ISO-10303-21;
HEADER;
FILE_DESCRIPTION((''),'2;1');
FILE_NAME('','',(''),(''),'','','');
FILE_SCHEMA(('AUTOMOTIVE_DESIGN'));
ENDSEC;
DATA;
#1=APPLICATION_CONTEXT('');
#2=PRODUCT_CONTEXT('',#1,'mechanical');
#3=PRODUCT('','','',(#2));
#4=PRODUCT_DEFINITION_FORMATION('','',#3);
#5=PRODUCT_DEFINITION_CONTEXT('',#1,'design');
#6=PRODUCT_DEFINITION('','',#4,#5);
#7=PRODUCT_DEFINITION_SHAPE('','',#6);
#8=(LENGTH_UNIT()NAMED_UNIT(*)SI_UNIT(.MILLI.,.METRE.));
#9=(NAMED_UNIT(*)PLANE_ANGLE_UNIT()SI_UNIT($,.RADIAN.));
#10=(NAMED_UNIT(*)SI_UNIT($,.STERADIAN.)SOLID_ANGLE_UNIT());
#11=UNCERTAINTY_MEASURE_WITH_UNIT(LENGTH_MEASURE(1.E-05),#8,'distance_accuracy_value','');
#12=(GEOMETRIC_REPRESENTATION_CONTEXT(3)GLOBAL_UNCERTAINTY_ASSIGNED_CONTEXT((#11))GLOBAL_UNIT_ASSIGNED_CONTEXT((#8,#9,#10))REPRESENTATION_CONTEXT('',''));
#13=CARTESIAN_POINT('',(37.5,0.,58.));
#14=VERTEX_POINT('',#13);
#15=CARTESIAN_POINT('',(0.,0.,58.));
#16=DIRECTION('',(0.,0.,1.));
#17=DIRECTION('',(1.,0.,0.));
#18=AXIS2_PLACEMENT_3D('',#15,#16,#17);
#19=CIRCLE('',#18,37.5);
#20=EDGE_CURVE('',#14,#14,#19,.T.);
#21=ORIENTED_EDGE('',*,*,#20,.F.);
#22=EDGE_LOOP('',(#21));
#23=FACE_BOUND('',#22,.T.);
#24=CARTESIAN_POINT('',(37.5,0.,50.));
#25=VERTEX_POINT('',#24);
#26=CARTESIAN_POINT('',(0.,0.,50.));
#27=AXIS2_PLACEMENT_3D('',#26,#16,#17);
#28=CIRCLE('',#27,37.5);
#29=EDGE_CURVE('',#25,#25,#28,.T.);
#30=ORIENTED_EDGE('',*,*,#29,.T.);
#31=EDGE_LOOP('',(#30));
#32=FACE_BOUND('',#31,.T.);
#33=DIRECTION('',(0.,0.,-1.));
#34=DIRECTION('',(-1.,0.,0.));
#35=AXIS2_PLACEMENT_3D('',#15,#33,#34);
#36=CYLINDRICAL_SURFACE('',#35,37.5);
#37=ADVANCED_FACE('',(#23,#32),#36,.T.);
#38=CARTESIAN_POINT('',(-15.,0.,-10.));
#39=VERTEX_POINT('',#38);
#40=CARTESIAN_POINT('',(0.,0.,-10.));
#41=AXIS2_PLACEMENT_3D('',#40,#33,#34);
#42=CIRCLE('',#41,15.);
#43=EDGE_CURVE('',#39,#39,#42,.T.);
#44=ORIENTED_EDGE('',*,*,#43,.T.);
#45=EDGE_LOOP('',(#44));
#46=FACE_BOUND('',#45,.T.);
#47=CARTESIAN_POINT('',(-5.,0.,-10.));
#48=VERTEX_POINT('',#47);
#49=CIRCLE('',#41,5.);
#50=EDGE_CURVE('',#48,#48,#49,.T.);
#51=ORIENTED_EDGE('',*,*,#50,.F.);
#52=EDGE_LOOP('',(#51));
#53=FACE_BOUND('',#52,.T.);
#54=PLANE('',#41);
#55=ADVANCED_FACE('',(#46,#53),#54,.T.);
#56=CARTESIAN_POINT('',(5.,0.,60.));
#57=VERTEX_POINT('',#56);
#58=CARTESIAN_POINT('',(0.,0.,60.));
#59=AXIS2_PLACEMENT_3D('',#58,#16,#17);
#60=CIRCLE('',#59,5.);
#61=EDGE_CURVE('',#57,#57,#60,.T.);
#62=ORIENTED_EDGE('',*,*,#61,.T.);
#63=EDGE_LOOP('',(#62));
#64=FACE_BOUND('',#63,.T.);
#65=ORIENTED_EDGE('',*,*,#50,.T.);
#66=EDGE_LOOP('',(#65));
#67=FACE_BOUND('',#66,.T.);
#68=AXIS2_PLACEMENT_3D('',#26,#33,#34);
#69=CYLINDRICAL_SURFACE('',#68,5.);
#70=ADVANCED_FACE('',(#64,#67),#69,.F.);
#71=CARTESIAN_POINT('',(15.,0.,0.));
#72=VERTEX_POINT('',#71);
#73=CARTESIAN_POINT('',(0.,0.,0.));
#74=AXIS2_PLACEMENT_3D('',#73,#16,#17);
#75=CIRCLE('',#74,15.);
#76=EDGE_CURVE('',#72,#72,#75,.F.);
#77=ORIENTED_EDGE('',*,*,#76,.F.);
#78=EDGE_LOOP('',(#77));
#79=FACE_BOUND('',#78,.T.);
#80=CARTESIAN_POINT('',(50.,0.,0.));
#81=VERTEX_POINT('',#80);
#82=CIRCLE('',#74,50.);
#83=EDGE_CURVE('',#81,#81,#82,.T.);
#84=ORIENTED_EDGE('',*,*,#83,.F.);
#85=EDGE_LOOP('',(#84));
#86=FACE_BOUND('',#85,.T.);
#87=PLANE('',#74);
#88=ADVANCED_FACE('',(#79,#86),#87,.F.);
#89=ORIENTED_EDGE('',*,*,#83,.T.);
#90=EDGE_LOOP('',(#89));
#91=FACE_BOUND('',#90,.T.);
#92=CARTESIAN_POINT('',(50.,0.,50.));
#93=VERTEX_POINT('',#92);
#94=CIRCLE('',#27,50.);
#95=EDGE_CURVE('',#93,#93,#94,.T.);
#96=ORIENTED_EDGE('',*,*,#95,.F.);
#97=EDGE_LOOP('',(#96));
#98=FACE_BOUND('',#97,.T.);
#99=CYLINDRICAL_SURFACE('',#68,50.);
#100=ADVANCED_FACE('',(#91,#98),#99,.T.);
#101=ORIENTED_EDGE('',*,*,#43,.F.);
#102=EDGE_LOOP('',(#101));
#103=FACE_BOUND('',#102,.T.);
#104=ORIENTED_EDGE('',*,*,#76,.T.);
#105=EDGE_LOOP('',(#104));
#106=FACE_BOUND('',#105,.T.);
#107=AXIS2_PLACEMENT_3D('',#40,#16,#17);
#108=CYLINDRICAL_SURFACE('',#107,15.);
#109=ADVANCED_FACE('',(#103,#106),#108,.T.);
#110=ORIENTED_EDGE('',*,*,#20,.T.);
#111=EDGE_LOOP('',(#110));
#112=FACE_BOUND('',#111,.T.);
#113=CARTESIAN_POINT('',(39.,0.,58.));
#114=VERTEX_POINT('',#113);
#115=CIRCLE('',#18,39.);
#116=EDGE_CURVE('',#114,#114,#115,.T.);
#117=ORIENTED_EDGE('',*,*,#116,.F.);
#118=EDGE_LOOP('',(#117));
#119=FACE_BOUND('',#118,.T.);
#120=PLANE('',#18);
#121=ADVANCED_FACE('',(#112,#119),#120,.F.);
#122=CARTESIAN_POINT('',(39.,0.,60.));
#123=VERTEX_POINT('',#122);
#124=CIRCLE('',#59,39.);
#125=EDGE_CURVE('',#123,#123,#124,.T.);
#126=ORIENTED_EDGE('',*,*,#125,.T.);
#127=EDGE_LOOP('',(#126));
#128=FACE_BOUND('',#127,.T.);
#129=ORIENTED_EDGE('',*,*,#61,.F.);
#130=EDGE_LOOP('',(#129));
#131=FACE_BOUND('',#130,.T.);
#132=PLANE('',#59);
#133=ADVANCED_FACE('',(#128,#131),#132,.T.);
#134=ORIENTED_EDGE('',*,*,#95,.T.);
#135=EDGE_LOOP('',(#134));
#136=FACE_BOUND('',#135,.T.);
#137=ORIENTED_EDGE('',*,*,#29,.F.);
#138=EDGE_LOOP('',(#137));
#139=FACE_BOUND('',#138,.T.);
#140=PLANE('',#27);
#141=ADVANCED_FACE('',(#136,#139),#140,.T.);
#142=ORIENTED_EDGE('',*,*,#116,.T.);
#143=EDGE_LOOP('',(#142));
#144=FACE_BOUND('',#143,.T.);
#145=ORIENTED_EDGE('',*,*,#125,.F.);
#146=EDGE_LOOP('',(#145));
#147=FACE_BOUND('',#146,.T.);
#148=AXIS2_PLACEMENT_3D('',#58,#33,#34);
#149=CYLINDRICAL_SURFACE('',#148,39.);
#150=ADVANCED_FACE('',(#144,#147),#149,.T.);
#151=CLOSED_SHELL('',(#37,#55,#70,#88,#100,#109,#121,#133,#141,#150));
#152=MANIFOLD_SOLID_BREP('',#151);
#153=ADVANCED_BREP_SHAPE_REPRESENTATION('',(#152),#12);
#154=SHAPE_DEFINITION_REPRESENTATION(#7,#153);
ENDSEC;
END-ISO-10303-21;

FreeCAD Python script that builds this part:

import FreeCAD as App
import Part
import Sketcher

V = App.Vector
Q = App.Units.Quantity

doc = App.newDocument("Part")
body = doc.addObject("PartDesign::Body", "Body")

sketch1 = body.newObject("Sketcher::SketchObject", "Sketch")
sketch1.AttachmentSupport = (doc.getObject("XY_Plane"), [""])
sketch1.MapMode = "FlatFace"
sketch1.addGeometry(Part.Circle(V(0, 0, 0), V(0, 0, 1), 50), False)
sketch1.addGeometry(Part.Circle(V(0, 0, 0), V(0, 0, 1), 5), False)
sketch1.addConstraint(Sketcher.Constraint("Coincident", 0, 3, -1, 1))
sketch1.addConstraint(Sketcher.Constraint("Coincident", 1, 3, -1, 1))
sketch1.addConstraint(Sketcher.Constraint("Diameter", 0, Q("100 mm")))
sketch1.addConstraint(Sketcher.Constraint("Diameter", 1, Q("10 mm")))
pad1 = body.newObject("PartDesign::Pad", "Pad")
pad1.Profile = sketch1
pad1.Length = 50

sketch2 = body.newObject("Sketcher::SketchObject", "Sketch001")
sketch2.AttachmentSupport = (doc.getObject("XY_Plane"), [""])
sketch2.MapMode = "FlatFace"
sketch2.AttachmentOffset = App.Placement(V(0, 0, 50), App.Rotation())
sketch2.addGeometry(Part.Circle(V(0, 0, 0), V(0, 0, 1), 37.5), False)
sketch2.addGeometry(Part.Circle(V(0, 0, 0), V(0, 0, 1), 5), False)
sketch2.addConstraint(Sketcher.Constraint("Coincident", 0, 3, -1, 1))
sketch2.addConstraint(Sketcher.Constraint("Coincident", 1, 3, -1, 1))
sketch2.addConstraint(Sketcher.Constraint("Diameter", 0, Q("75 mm")))
sketch2.addConstraint(Sketcher.Constraint("Diameter", 1, Q("10 mm")))
pad2 = body.newObject("PartDesign::Pad", "Pad001")
pad2.Profile = sketch2
pad2.Length = 8

sketch3 = body.newObject("Sketcher::SketchObject", "Sketch002")
sketch3.AttachmentSupport = (doc.getObject("XY_Plane"), [""])
sketch3.MapMode = "FlatFace"
sketch3.AttachmentOffset = App.Placement(V(0, 0, 58), App.Rotation())
sketch3.addGeometry(Part.Circle(V(0, 0, 0), V(0, 0, 1), 39), False)
sketch3.addGeometry(Part.Circle(V(0, 0, 0), V(0, 0, 1), 5), False)
sketch3.addConstraint(Sketcher.Constraint("Coincident", 0, 3, -1, 1))
sketch3.addConstraint(Sketcher.Constraint("Coincident", 1, 3, -1, 1))
sketch3.addConstraint(Sketcher.Constraint("Diameter", 0, Q("78 mm")))
sketch3.addConstraint(Sketcher.Constraint("Diameter", 1, Q("10 mm")))
pad3 = body.newObject("PartDesign::Pad", "Pad002")
pad3.Profile = sketch3
pad3.Length = 2

sketch4 = body.newObject("Sketcher::SketchObject", "Sketch003")
sketch4.AttachmentSupport = (doc.getObject("XY_Plane"), [""])
sketch4.MapMode = "FlatFace"
sketch4.AttachmentOffset = App.Placement(V(0, 0, -10), App.Rotation())
sketch4.addGeometry(Part.Circle(V(0, 0, 0), V(0, 0, 1), 15), False)
sketch4.addGeometry(Part.Circle(V(0, 0, 0), V(0, 0, 1), 5), False)
sketch4.addConstraint(Sketcher.Constraint("Coincident", 0, 3, -1, 1))
sketch4.addConstraint(Sketcher.Constraint("Coincident", 1, 3, -1, 1))
sketch4.addConstraint(Sketcher.Constraint("Diameter", 0, Q("30 mm")))
sketch4.addConstraint(Sketcher.Constraint("Diameter", 1, Q("10 mm")))
pad4 = body.newObject("PartDesign::Pad", "Pad003")
pad4.Profile = sketch4
pad4.Length = 10

doc.recompute()
